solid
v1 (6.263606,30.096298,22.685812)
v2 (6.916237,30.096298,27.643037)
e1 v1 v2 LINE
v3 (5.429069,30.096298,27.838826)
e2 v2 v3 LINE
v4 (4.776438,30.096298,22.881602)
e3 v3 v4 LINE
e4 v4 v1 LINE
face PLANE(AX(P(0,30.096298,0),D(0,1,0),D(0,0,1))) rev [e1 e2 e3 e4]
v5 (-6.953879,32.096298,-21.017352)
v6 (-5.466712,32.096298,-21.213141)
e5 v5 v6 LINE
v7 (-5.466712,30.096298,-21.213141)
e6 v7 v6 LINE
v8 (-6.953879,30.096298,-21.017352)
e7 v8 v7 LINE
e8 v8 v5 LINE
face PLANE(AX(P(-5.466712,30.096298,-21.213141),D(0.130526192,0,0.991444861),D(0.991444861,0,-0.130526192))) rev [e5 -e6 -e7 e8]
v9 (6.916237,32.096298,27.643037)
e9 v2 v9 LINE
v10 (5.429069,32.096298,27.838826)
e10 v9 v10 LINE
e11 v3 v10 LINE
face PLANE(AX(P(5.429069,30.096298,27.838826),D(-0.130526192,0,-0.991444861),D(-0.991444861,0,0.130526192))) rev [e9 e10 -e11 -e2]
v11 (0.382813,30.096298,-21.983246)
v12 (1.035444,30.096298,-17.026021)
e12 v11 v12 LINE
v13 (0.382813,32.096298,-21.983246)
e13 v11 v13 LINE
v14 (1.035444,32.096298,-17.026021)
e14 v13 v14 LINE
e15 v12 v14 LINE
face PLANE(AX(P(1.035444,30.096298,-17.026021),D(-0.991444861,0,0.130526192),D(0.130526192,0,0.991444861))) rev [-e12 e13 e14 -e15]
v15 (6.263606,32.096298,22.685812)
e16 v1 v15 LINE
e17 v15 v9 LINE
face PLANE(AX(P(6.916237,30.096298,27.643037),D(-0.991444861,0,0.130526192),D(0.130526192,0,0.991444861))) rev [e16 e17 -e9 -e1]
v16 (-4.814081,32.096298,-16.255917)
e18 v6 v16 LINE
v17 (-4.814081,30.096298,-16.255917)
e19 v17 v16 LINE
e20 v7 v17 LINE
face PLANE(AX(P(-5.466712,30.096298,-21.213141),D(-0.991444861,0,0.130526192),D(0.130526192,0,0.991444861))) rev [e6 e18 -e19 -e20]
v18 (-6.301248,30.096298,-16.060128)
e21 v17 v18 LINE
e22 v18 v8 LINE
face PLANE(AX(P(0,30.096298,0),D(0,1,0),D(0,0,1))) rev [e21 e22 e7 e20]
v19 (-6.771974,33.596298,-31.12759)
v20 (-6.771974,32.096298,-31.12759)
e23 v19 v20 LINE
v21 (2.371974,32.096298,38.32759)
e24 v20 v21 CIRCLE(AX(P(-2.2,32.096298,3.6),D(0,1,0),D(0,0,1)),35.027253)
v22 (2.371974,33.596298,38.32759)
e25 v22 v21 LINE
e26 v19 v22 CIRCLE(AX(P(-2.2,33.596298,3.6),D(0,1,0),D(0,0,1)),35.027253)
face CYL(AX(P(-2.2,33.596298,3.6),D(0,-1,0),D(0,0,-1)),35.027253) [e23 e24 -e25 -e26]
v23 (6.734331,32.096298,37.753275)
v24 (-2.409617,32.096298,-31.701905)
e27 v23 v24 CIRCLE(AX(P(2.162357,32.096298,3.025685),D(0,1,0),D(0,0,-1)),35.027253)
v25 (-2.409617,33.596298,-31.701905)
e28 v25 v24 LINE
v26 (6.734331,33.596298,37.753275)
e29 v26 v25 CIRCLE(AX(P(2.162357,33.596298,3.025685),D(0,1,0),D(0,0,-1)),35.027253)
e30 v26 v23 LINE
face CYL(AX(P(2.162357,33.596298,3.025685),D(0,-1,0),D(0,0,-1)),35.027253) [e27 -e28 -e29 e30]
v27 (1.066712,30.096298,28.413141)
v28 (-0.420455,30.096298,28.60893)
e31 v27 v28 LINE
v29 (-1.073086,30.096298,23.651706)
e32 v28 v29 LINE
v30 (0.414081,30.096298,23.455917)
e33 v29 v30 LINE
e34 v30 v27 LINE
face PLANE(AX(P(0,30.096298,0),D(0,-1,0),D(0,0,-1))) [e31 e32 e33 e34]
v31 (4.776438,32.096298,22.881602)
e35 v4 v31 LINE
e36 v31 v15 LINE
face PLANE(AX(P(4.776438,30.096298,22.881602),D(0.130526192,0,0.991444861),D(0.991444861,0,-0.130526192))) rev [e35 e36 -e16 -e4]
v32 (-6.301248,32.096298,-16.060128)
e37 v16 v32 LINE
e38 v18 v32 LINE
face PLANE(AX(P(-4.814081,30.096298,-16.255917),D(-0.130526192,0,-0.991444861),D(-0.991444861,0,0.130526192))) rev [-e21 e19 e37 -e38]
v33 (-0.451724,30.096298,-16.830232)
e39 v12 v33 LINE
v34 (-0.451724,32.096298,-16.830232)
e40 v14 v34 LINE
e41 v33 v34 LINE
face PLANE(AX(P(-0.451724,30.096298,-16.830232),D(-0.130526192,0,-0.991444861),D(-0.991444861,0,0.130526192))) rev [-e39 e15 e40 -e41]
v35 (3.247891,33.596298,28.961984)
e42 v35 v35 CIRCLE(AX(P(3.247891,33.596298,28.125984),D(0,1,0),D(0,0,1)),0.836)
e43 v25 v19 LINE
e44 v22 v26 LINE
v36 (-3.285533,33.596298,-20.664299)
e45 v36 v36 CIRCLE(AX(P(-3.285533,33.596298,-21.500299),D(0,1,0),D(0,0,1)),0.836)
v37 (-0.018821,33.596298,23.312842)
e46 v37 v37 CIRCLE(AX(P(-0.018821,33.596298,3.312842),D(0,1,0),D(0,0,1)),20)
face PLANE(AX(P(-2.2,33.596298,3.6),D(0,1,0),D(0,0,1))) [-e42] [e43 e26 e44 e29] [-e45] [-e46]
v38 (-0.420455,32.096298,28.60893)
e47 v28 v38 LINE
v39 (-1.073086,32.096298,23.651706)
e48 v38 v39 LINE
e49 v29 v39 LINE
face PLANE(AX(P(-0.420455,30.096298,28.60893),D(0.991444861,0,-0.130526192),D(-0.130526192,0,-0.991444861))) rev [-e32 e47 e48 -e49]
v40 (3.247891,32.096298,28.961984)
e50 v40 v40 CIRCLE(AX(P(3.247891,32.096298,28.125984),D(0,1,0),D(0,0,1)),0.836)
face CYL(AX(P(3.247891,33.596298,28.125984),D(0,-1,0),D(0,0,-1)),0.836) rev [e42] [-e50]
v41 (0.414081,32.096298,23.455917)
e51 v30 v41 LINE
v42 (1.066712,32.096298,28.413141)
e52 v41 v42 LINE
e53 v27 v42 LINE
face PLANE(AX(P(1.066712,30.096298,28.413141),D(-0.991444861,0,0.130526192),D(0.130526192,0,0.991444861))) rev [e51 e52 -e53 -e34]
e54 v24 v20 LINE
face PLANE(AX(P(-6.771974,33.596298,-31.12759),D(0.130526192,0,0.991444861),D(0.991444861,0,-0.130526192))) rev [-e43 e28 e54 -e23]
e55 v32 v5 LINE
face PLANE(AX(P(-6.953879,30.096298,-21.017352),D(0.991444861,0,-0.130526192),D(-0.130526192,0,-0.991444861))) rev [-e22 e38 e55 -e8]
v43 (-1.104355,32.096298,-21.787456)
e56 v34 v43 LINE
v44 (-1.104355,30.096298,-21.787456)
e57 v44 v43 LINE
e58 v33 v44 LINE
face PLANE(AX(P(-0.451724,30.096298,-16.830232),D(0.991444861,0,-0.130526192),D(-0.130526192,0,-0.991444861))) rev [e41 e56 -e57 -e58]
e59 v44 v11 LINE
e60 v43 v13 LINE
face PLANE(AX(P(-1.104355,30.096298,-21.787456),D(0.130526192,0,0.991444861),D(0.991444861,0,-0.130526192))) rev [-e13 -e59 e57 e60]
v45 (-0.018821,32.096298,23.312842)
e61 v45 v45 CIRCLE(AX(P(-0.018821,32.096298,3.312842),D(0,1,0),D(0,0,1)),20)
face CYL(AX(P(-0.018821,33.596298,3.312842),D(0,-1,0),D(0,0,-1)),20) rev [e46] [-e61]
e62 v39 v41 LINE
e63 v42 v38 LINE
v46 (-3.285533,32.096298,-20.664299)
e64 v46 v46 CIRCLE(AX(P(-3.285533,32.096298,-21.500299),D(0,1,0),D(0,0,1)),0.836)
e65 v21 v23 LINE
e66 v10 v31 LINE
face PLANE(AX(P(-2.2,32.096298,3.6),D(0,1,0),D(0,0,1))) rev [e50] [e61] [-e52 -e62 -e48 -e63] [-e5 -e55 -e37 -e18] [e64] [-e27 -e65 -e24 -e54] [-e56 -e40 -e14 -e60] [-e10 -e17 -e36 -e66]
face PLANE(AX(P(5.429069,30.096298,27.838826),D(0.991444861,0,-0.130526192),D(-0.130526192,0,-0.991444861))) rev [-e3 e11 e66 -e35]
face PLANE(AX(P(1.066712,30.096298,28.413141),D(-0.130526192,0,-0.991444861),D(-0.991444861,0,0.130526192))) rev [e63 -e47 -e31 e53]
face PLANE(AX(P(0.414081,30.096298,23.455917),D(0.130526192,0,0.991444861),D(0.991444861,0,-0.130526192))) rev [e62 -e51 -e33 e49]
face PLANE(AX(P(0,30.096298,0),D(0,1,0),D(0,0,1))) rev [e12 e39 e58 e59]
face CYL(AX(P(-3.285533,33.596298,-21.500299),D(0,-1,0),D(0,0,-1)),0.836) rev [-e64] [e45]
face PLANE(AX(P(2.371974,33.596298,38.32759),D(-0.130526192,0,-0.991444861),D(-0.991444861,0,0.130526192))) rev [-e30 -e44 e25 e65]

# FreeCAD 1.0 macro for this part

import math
import FreeCAD as App
import Part
import Sketcher
Q = App.Units.Quantity

doc = App.newDocument("Part")
body = doc.addObject("PartDesign::Body", "Body")

# Sketch on XZ plane
sketch1 = body.newObject("Sketcher::SketchObject", "Sketch")
sketch1.AttachmentSupport = (doc.getObject("XZ_Plane"), [""])
sketch1.MapMode = "FlatFace"
sketch1.AttachmentOffset = App.Placement(App.Vector(0, 0, -32.096298), App.Rotation())
sketch1.addGeometry([
    Part.LineSegment(App.Vector(-2.4, -31.7, 0), App.Vector(-6.8, -31.1, 0)),  # 0
    Part.ArcOfCircle(Part.Circle(App.Vector(-2.2, 3.6, 0), App.Vector(0, 0, 1), 35), math.radians(82), math.radians(262)),  # 1
    Part.LineSegment(App.Vector(2.4, 38.3, 0), App.Vector(6.7, 37.8, 0)),  # 2
    Part.ArcOfCircle(Part.Circle(App.Vector(2.2, 3, 0), App.Vector(0, 0, 1), 35), math.radians(-98), math.radians(82)),  # 3
    Part.Circle(App.Vector(3.2, 28.1, 0), App.Vector(0, 0, 1), 0.8),  # 4
    Part.Circle(App.Vector(0, 3.3, 0), App.Vector(0, 0, 1), 20),  # 5
    Part.Circle(App.Vector(-3.3, -21.5, 0), App.Vector(0, 0, 1), 0.8),  # 6
], False)
sketch1.addConstraint([
    Sketcher.Constraint("Tangent", 0, 2, 1, 2),
    Sketcher.Constraint("Tangent", 1, 1, 2, 1),
    Sketcher.Constraint("Tangent", 2, 2, 3, 2),
    Sketcher.Constraint("Tangent", 3, 1, 0, 1),
    Sketcher.Constraint("Equal", 1, 3),
    Sketcher.Constraint("Equal", 4, 6),
    Sketcher.Constraint("Diameter", 5, 40.0),
    Sketcher.Constraint("Diameter", 4, 1.672),
    Sketcher.Constraint("Angle", 0, Q("172.5 deg")),
    Sketcher.Constraint("Distance", 0, 4.4),
    Sketcher.Constraint("DistanceX", 1, 3, -1, 1, 2.2),
    Sketcher.Constraint("DistanceY", -1, 1, 1, 3, 3.6),
    Sketcher.Constraint("Radius", 1, 35.027253),
    Sketcher.Constraint("DistanceY", 6, 3, -1, 1, 21.500299),
    Sketcher.Constraint("DistanceY", 3, 3, 4, 3, 25.100299),
    Sketcher.Constraint("DistanceX", -1, 1, 4, 3, 3.247891),
    Sketcher.Constraint("DistanceX", 5, 3, -1, 1, 0.018821),
    Sketcher.Constraint("DistanceY", 5, 3, 4, 3, 24.813141),
    Sketcher.Constraint("DistanceX", 6, 3, 3, 3, 5.447891),
])
pad1 = body.newObject("PartDesign::Pad", "Pad")
pad1.Profile = sketch1
pad1.Length = 1.5
pad1.Reversed = True

# Sketch on XZ plane
sketch2 = body.newObject("Sketcher::SketchObject", "Sketch001")
sketch2.AttachmentSupport = (doc.getObject("XZ_Plane"), [""])
sketch2.MapMode = "FlatFace"
sketch2.AttachmentOffset = App.Placement(App.Vector(0, 0, -32.096298), App.Rotation())
sketch2.addGeometry([
    Part.LineSegment(App.Vector(0.4, 23.5, 0), App.Vector(1.1, 28.4, 0)),  # 0
    Part.LineSegment(App.Vector(1.1, 28.4, 0), App.Vector(-0.4, 28.6, 0)),  # 1
    Part.LineSegment(App.Vector(-0.4, 28.6, 0), App.Vector(-1.1, 23.7, 0)),  # 2
    Part.LineSegment(App.Vector(-1.1, 23.7, 0), App.Vector(0.4, 23.5, 0)),  # 3
    Part.LineSegment(App.Vector(5.4, 27.8, 0), App.Vector(4.8, 22.9, 0)),  # 4
    Part.LineSegment(App.Vector(4.8, 22.9, 0), App.Vector(6.3, 22.7, 0)),  # 5
    Part.LineSegment(App.Vector(6.3, 22.7, 0), App.Vector(6.9, 27.6, 0)),  # 6
    Part.LineSegment(App.Vector(6.9, 27.6, 0), App.Vector(5.4, 27.8, 0)),  # 7
    Part.LineSegment(App.Vector(-0.5, -16.8, 0), App.Vector(-1.1, -21.8, 0)),  # 8
    Part.LineSegment(App.Vector(-1.1, -21.8, 0), App.Vector(0.4, -22, 0)),  # 9
    Part.LineSegment(App.Vector(0.4, -22, 0), App.Vector(1, -17, 0)),  # 10
    Part.LineSegment(App.Vector(1, -17, 0), App.Vector(-0.5, -16.8, 0)),  # 11
    Part.LineSegment(App.Vector(-5.5, -21.2, 0), App.Vector(-4.8, -16.3, 0)),  # 12
    Part.LineSegment(App.Vector(-4.8, -16.3, 0), App.Vector(-6.3, -16.1, 0)),  # 13
    Part.LineSegment(App.Vector(-6.3, -16.1, 0), App.Vector(-7, -21, 0)),  # 14
    Part.LineSegment(App.Vector(-7, -21, 0), App.Vector(-5.5, -21.2, 0)),  # 15
], False)
sketch2.addConstraint([
    Sketcher.Constraint("Coincident", 0, 2, 1, 1),
    Sketcher.Constraint("Coincident", 1, 2, 2, 1),
    Sketcher.Constraint("Coincident", 2, 2, 3, 1),
    Sketcher.Constraint("Coincident", 3, 2, 0, 1),
    Sketcher.Constraint("Coincident", 4, 2, 5, 1),
    Sketcher.Constraint("Coincident", 5, 2, 6, 1),
    Sketcher.Constraint("Coincident", 6, 2, 7, 1),
    Sketcher.Constraint("Coincident", 7, 2, 4, 1),
    Sketcher.Constraint("Coincident", 8, 2, 9, 1),
    Sketcher.Constraint("Coincident", 9, 2, 10, 1),
    Sketcher.Constraint("Coincident", 10, 2, 11, 1),
    Sketcher.Constraint("Coincident", 11, 2, 8, 1),
    Sketcher.Constraint("Coincident", 12, 2, 13, 1),
    Sketcher.Constraint("Coincident", 13, 2, 14, 1),
    Sketcher.Constraint("Coincident", 14, 2, 15, 1),
    Sketcher.Constraint("Coincident", 15, 2, 12, 1),
    Sketcher.Constraint("Perpendicular", 0, 1),
    Sketcher.Constraint("Perpendicular", 1, 2),
    Sketcher.Constraint("Perpendicular", 2, 3),
    Sketcher.Constraint("Perpendicular", 3, 4),
    Sketcher.Constraint("Perpendicular", 4, 5),
    Sketcher.Constraint("Perpendicular", 5, 6),
    Sketcher.Constraint("Perpendicular", 6, 7),
    Sketcher.Constraint("Perpendicular", 7, 8),
    Sketcher.Constraint("Perpendicular", 8, 9),
    Sketcher.Constraint("Perpendicular", 9, 10),
    Sketcher.Constraint("Perpendicular", 10, 11),
    Sketcher.Constraint("Perpendicular", 11, 12),
    Sketcher.Constraint("Perpendicular", 12, 13),
    Sketcher.Constraint("Perpendicular", 13, 14),
    Sketcher.Constraint("Perpendicular", 14, 15),
    Sketcher.Constraint("Equal", 2, 4),
    Sketcher.Constraint("Equal", 3, 5),
    Sketcher.Constraint("Equal", 6, 8),
    Sketcher.Constraint("Equal", 7, 9),
    Sketcher.Constraint("Equal", 10, 12),
    Sketcher.Constraint("Equal", 11, 13),
    Sketcher.Constraint("Distance", 0, 5.0),
    Sketcher.Constraint("Angle", 0, Q("82.5 deg")),
    Sketcher.Constraint("Distance", 1, 1.5),
    Sketcher.Constraint("DistanceY", -1, 1, 4, 2, 22.881602),
    Sketcher.Constraint("DistanceX", 2, 2, 9, 2, 1.455899),
    Sketcher.Constraint("DistanceY", -1, 1, 0, 2, 28.413141),
    Sketcher.Constraint("DistanceX", -1, 1, 3, 2, 0.414081),
    Sketcher.Constraint("DistanceX", -1, 1, 4, 2, 4.776438),
    Sketcher.Constraint("DistanceY", 10, 2, -1, 1, 17.026021),
    Sketcher.Constraint("DistanceX", 12, 2, -1, 1, 4.814081),
    Sketcher.Constraint("DistanceY", 14, 2, -1, 1, 21.017352),
])
pad2 = body.newObject("PartDesign::Pad", "Pad001")
pad2.Profile = sketch2
pad2.Length = 2

doc.recompute()
